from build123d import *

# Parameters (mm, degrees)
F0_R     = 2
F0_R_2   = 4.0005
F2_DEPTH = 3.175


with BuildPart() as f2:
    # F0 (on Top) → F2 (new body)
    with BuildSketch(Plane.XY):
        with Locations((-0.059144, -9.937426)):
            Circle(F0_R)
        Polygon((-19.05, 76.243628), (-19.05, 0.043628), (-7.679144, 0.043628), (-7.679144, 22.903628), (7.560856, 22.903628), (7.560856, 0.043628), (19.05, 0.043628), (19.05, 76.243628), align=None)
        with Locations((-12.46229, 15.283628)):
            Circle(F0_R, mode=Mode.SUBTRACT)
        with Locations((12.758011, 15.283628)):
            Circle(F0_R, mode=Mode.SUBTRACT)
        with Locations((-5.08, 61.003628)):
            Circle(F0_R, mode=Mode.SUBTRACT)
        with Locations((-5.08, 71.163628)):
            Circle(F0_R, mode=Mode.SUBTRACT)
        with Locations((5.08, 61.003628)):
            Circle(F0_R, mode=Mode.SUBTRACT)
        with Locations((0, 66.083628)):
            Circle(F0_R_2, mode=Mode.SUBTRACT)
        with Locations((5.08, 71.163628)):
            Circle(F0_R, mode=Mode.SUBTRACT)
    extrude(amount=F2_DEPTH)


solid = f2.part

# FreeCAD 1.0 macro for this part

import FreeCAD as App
import Part
import Sketcher
from FreeCAD import Vector
Q = App.Units.Quantity

doc = App.newDocument("Part")
body = doc.addObject("PartDesign::Body", "Body")
body.AllowCompound = True

# Sketch on XY plane
sketch1 = doc.addObject("Sketcher::SketchObject", "Sketch")
body.addObject(sketch1)
sketch1.AttachmentSupport = (doc.XY_Plane, [""])
sketch1.MapMode = "FlatFace"
sketch1.addGeometry(Part.Circle(Vector(-0.059144, -9.937426, 0), Vector(0, 0, 1), 2), False)
sketch1.addGeometry(Part.LineSegment(Vector(-19.05, 76.243628, 0), Vector(-19.05, 0.043628, 0)), False)
sketch1.addGeometry(Part.LineSegment(Vector(-19.05, 0.043628, 0), Vector(-7.679144, 0.043628, 0)), False)
sketch1.addGeometry(Part.LineSegment(Vector(-7.679144, 0.043628, 0), Vector(-7.679144, 22.903628, 0)), False)
sketch1.addGeometry(Part.LineSegment(Vector(-7.679144, 22.903628, 0), Vector(7.560856, 22.903628, 0)), False)
sketch1.addGeometry(Part.LineSegment(Vector(7.560856, 22.903628, 0), Vector(7.560856, 0.043628, 0)), False)
sketch1.addGeometry(Part.LineSegment(Vector(7.560856, 0.043628, 0), Vector(19.05, 0.043628, 0)), False)
sketch1.addGeometry(Part.LineSegment(Vector(19.05, 0.043628, 0), Vector(19.05, 76.243628, 0)), False)
sketch1.addGeometry(Part.LineSegment(Vector(19.05, 76.243628, 0), Vector(-19.05, 76.243628, 0)), False)
sketch1.addGeometry(Part.Circle(Vector(-12.46229, 15.283628, 0), Vector(0, 0, 1), 2), False)
sketch1.addGeometry(Part.Circle(Vector(12.758011, 15.283628, 0), Vector(0, 0, 1), 2), False)
sketch1.addGeometry(Part.Circle(Vector(-5.08, 61.003628, 0), Vector(0, 0, 1), 2), False)
sketch1.addGeometry(Part.Circle(Vector(-5.08, 71.163628, 0), Vector(0, 0, 1), 2), False)
sketch1.addGeometry(Part.Circle(Vector(0, 66.083628, 0), Vector(0, 0, 1), 4.0005), False)
sketch1.addGeometry(Part.Circle(Vector(5.08, 61.003628, 0), Vector(0, 0, 1), 2), False)
sketch1.addGeometry(Part.Circle(Vector(5.08, 71.163628, 0), Vector(0, 0, 1), 2), False)
sketch1.addConstraint(Sketcher.Constraint("Coincident", 1, 2, 2, 1))
sketch1.addConstraint(Sketcher.Constraint("Coincident", 2, 2, 3, 1))
sketch1.addConstraint(Sketcher.Constraint("Coincident", 3, 2, 4, 1))
sketch1.addConstraint(Sketcher.Constraint("Coincident", 4, 2, 5, 1))
sketch1.addConstraint(Sketcher.Constraint("Coincident", 5, 2, 6, 1))
sketch1.addConstraint(Sketcher.Constraint("Coincident", 6, 2, 7, 1))
sketch1.addConstraint(Sketcher.Constraint("Coincident", 7, 2, 8, 1))
sketch1.addConstraint(Sketcher.Constraint("Coincident", 8, 2, 1, 1))
sketch1.addConstraint(Sketcher.Constraint("Vertical", 1))
sketch1.addConstraint(Sketcher.Constraint("Horizontal", 2))
sketch1.addConstraint(Sketcher.Constraint("Vertical", 3))
sketch1.addConstraint(Sketcher.Constraint("Horizontal", 4))
sketch1.addConstraint(Sketcher.Constraint("Vertical", 5))
sketch1.addConstraint(Sketcher.Constraint("Horizontal", 6))
sketch1.addConstraint(Sketcher.Constraint("Vertical", 7))
sketch1.addConstraint(Sketcher.Constraint("Horizontal", 8))
sketch1.addConstraint(Sketcher.Constraint("Equal", 0, 9))
sketch1.addConstraint(Sketcher.Constraint("Equal", 9, 10))
sketch1.addConstraint(Sketcher.Constraint("Equal", 10, 11))
sketch1.addConstraint(Sketcher.Constraint("Equal", 11, 12))
sketch1.addConstraint(Sketcher.Constraint("Equal", 12, 14))
sketch1.addConstraint(Sketcher.Constraint("Equal", 14, 15))
sketch1.addConstraint(Sketcher.Constraint("Symmetric", 11, 3, 14, 3, -2))
sketch1.addConstraint(Sketcher.Constraint("Symmetric", 12, 3, 15, 3, -2))
sketch1.addConstraint(Sketcher.Constraint("Symmetric", 1, 2, 6, 2, -2))
sketch1.addConstraint(Sketcher.Constraint("PointOnObject", 13, 3, -2))
sketch1.addConstraint(Sketcher.Constraint("Horizontal", 9, 3, 10, 3))
sketch1.addConstraint(Sketcher.Constraint("Vertical", 11, 3, 12, 3))
sketch1.addConstraint(Sketcher.Constraint("DistanceY", 1, 2, 1, 1, Q("3 in")))
sketch1.addConstraint(Sketcher.Constraint("Diameter", 13, Q("0.315 in")))
sketch1.addConstraint(Sketcher.Constraint("DistanceX", 4, 1, 4, 2, Q("0.6 in")))
sketch1.addConstraint(Sketcher.Constraint("DistanceX", 8, 2, 8, 1, Q("1.5 in")))
sketch1.addConstraint(Sketcher.Constraint("DistanceY", 3, 1, 3, 2, Q("0.9 in")))
sketch1.addConstraint(Sketcher.Constraint("DistanceY", 9, 3, 13, 3, Q("2 in")))
sketch1.addConstraint(Sketcher.Constraint("DistanceX", 11, 3, -1, 1, Q("0.2 in")))
sketch1.addConstraint(Sketcher.Constraint("DistanceY", 9, 3, 11, 3, Q("1.8 in")))
sketch1.addConstraint(Sketcher.Constraint("DistanceY", 11, 3, 12, 3, Q("0.4 in")))
sketch1.addConstraint(Sketcher.Constraint("DistanceY", 1, 2, 9, 3, Q("0.6 in")))
sketch1.addConstraint(Sketcher.Constraint("DistanceX", 2, 2, 0, 3, Q("0.3 in")))
sketch1.addConstraint(Sketcher.Constraint("Diameter", 0, Q("4 mm")))
sketch1.addConstraint(Sketcher.Constraint("DistanceX", 9, 3, 10, 3, Q("25.220301 mm")))
sketch1.addConstraint(Sketcher.Constraint("DistanceX", 2, 1, 2, 2, Q("11.370856 mm")))
sketch1.addConstraint(Sketcher.Constraint("DistanceX", 9, 3, -1, 1, Q("12.46229 mm")))
sketch1.addConstraint(Sketcher.Constraint("DistanceY", -1, 1, 12, 3, Q("71.163628 mm")))
sketch1.addConstraint(Sketcher.Constraint("DistanceY", 0, 3, -1, 1, Q("9.937426 mm")))
pad1 = doc.addObject("PartDesign::Pad", "Pad")
body.addObject(pad1)
pad1.Profile = sketch1
pad1.Length = Q("0.125 in")

doc.recompute()
